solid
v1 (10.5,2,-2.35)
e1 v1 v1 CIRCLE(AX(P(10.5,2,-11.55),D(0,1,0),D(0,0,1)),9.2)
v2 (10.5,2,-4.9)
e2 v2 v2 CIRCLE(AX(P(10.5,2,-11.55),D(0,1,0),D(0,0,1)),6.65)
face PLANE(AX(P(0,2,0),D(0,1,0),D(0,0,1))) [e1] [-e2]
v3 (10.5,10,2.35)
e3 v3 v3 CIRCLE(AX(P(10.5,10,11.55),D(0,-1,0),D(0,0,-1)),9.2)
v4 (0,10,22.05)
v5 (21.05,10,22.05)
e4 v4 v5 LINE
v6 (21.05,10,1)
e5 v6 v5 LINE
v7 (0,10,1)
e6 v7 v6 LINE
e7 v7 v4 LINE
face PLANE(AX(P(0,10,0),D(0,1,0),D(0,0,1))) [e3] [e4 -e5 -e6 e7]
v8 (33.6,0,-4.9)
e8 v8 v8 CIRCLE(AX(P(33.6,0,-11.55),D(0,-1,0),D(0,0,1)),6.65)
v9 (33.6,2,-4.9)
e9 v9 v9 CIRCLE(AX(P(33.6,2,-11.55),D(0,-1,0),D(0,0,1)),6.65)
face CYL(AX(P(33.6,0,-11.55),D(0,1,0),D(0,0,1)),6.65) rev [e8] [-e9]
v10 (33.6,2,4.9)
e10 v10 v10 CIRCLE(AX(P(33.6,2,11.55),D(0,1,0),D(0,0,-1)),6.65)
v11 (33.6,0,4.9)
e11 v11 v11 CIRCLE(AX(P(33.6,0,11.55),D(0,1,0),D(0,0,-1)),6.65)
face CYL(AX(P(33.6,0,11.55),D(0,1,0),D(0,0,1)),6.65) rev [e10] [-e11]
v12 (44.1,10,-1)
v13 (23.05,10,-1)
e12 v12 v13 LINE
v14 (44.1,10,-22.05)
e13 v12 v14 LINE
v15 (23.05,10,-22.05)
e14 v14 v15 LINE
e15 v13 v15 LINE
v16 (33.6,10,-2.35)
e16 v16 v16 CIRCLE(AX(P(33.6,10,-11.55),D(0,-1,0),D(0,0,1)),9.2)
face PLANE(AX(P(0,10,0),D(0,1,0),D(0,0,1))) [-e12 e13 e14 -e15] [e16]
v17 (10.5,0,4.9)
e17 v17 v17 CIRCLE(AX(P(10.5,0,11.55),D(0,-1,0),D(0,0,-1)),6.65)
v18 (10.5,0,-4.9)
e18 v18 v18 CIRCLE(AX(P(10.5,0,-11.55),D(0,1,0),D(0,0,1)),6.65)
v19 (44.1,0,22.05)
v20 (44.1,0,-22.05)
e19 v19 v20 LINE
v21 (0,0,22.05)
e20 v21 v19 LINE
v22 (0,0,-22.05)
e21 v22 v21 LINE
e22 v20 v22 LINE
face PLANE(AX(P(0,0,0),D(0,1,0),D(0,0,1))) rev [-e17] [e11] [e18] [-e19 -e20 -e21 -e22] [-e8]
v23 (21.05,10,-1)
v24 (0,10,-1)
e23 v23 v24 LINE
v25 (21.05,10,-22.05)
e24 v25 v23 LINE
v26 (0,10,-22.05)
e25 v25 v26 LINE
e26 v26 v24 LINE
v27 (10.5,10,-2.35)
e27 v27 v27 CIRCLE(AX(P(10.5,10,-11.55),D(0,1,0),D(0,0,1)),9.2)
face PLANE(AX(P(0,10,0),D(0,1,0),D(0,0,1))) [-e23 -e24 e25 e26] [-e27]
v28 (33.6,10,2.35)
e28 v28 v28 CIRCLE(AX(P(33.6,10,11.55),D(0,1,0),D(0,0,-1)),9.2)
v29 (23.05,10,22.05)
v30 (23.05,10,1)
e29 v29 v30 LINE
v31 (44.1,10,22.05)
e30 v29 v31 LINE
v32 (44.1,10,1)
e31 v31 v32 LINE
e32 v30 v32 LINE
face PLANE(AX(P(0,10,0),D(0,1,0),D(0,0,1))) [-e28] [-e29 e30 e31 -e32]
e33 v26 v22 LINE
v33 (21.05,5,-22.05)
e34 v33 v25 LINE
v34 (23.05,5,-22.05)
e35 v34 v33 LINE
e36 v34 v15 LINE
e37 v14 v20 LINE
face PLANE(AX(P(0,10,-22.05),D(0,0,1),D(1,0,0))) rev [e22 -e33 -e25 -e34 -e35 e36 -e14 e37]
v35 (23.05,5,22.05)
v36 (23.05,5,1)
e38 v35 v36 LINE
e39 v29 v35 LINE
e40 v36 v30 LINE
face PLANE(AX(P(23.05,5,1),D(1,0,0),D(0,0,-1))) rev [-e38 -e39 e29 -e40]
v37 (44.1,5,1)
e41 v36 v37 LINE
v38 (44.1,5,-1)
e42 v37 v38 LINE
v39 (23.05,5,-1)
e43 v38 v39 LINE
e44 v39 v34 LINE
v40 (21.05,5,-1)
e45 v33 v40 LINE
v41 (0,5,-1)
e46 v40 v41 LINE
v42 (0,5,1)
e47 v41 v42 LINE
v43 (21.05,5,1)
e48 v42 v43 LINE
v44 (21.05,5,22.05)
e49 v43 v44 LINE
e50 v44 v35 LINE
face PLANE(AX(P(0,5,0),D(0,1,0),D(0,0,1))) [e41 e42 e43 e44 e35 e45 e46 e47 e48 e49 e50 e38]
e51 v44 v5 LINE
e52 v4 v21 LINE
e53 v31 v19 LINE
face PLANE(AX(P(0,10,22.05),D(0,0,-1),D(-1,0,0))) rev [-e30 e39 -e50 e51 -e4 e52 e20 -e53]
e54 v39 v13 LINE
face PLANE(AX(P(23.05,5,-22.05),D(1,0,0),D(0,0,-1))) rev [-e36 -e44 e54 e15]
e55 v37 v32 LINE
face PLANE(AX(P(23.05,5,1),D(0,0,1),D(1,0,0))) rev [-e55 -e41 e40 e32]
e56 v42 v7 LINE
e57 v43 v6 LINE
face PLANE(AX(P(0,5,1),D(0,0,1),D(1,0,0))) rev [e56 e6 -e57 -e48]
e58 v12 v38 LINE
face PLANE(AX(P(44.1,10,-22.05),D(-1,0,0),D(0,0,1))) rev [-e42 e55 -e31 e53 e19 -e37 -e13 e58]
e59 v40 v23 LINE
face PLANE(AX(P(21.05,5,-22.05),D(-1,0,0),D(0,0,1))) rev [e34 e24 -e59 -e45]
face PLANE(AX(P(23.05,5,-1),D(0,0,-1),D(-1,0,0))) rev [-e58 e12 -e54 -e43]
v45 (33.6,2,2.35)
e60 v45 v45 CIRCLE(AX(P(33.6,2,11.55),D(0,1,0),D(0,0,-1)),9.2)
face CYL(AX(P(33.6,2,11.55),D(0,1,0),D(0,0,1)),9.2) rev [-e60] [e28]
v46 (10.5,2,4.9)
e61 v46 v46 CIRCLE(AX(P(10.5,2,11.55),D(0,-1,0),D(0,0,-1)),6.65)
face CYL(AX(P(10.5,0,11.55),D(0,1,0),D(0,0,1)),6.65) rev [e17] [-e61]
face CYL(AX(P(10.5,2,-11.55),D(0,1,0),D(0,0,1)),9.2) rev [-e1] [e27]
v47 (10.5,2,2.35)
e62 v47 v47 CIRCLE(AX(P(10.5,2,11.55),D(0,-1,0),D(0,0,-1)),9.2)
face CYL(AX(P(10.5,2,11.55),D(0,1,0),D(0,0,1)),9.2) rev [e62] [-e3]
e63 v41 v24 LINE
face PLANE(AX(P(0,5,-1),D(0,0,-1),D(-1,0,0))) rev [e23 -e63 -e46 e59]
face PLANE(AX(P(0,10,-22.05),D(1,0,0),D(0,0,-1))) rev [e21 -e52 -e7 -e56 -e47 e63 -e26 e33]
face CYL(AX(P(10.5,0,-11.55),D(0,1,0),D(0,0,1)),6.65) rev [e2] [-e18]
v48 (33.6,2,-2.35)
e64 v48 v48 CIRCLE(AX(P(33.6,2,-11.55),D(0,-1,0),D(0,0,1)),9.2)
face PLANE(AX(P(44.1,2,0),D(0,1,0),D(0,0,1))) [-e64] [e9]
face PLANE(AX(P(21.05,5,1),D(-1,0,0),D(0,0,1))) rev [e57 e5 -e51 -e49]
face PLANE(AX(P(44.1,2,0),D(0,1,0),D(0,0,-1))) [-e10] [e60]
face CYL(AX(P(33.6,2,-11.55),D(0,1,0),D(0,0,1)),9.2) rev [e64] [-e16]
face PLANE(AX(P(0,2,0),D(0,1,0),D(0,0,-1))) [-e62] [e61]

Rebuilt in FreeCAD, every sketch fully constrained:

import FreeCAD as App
import Part
import Sketcher
from FreeCAD import Vector
Q = App.Units.Quantity


def add_polygon(sketch, points):
    """Adds a closed chain of lines whose ends are joined by coincident constraints."""
    first, n = sketch.GeometryCount, len(points)
    for a, b in zip(points, points[1:] + points[:1]):
        sketch.addGeometry(Part.LineSegment(App.Vector(*a, 0), App.Vector(*b, 0)), False)
    for i in range(n):
        sketch.addConstraint(Sketcher.Constraint("Coincident", first + i, 2, first + (i + 1) % n, 1))

doc = App.newDocument("Part")
body = doc.addObject("PartDesign::Body", "Body")

# Sketch on XZ plane
sketch1 = body.newObject("Sketcher::SketchObject", "Sketch")
sketch1.AttachmentSupport = (doc.getObject("XZ_Plane"), [""])
sketch1.MapMode = "FlatFace"
add_polygon(sketch1, [(0, -22), (0, 22), (44, 22), (44, -22)])  # lines 0-3
sketch1.addConstraint([
    Sketcher.Constraint("Vertical", 0),
    Sketcher.Constraint("Horizontal", 1),
    Sketcher.Constraint("Vertical", 2),
    Sketcher.Constraint("Horizontal", 3),
    Sketcher.Constraint("Symmetric", 0, 2, 3, 2, -1, 1),
    Sketcher.Constraint("Equal", 3, 0),
    Sketcher.Constraint("DistanceX", 1, 1, 1, 2, Q("44.1 mm")),
])
pad1 = body.newObject("PartDesign::Pad", "Pad")
pad1.Profile = sketch1
pad1.Length = 10
pad1.Reversed = True

# Sketch on XZ plane
sketch2 = body.newObject("Sketcher::SketchObject", "Sketch001")
sketch2.AttachmentSupport = (doc.getObject("XZ_Plane"), [""])
sketch2.MapMode = "FlatFace"
sketch2.AttachmentOffset = App.Placement(Vector(0, 0, -10), App.Rotation())
sketch2.addGeometry(Part.Circle(Vector(10, -12, 0), Vector(0, 0, 1), 9), False)
sketch2.addConstraint([
    Sketcher.Constraint("Diameter", 0, Q("18.4 mm")),
    Sketcher.Constraint("DistanceX", -1, 1, 0, 3, Q("10.5 mm")),
    Sketcher.Constraint("DistanceY", 0, 3, -1, 1, Q("11.55 mm")),
])
pocket1 = body.newObject("PartDesign::Pocket", "Pocket")
pocket1.Profile = sketch2
pocket1.Length = 8
pocket1.Reversed = True

# Sketch on XZ plane
sketch3 = body.newObject("Sketcher::SketchObject", "Sketch002")
sketch3.AttachmentSupport = (doc.getObject("XZ_Plane"), [""])
sketch3.MapMode = "FlatFace"
sketch3.AttachmentOffset = App.Placement(Vector(0, 0, -2), App.Rotation())
sketch3.addGeometry(Part.Circle(Vector(10, -12, 0), Vector(0, 0, 1), 7), False)
sketch3.addConstraint([
    Sketcher.Constraint("Diameter", 0, Q("13.3 mm")),
    Sketcher.Constraint("DistanceX", -1, 1, 0, 3, Q("10.5 mm")),
    Sketcher.Constraint("DistanceY", 0, 3, -1, 1, Q("11.55 mm")),
])
pocket2 = body.newObject("PartDesign::Pocket", "Pocket001")
pocket2.Profile = sketch3
pocket2.Type = "ThroughAll"
pocket2.Reversed = True
doc.recompute()

mirrored = body.newObject("PartDesign::Mirrored", "Mirrored")
mirrored.Originals = [pocket1, pocket2]
mirrored.MirrorPlane = (doc.getObject("XY_Plane"), [""])
body.Tip = mirrored
doc.recompute()

datumplane = body.newObject("PartDesign::Plane", "DatumPlane")
datumplane.AttachmentSupport = (doc.getObject("YZ_Plane"), [""])
datumplane.MapMode = "FlatFace"
datumplane.AttachmentOffset = App.Placement(Vector(0, 0, 22.05), App.Rotation())
mirrored2 = body.newObject("PartDesign::Mirrored", "Mirrored001")
mirrored2.Originals = [pocket1, pocket2]
mirrored2.MirrorPlane = (datumplane, [""])
body.Tip = mirrored2

# Sketch on XZ plane
sketch4 = body.newObject("Sketcher::SketchObject", "Sketch003")
sketch4.AttachmentSupport = (doc.getObject("XZ_Plane"), [""])
sketch4.MapMode = "FlatFace"
sketch4.AttachmentOffset = App.Placement(Vector(0, 0, -10), App.Rotation())
sketch4.addGeometry(Part.Circle(Vector(34, 12, 0), Vector(0, 0, 1), 9), False)
sketch4.addConstraint([
    Sketcher.Constraint("Diameter", 0, Q("18.4 mm")),
    Sketcher.Constraint("DistanceX", -1, 1, 0, 3, Q("33.6 mm")),
    Sketcher.Constraint("DistanceY", -1, 1, 0, 3, Q("11.55 mm")),
])
pocket3 = body.newObject("PartDesign::Pocket", "Pocket002")
pocket3.Profile = sketch4
pocket3.Length = 8
pocket3.Reversed = True

# Sketch on XZ plane
sketch5 = body.newObject("Sketcher::SketchObject", "Sketch004")
sketch5.AttachmentSupport = (doc.getObject("XZ_Plane"), [""])
sketch5.MapMode = "FlatFace"
sketch5.AttachmentOffset = App.Placement(Vector(0, 0, -2), App.Rotation())
sketch5.addGeometry(Part.Circle(Vector(34, 12, 0), Vector(0, 0, 1), 7), False)
sketch5.addConstraint([
    Sketcher.Constraint("Diameter", 0, Q("13.3 mm")),
    Sketcher.Constraint("DistanceX", -1, 1, 0, 3, Q("33.6 mm")),
    Sketcher.Constraint("DistanceY", -1, 1, 0, 3, Q("11.55 mm")),
])
pocket4 = body.newObject("PartDesign::Pocket", "Pocket003")
pocket4.Profile = sketch5
pocket4.Type = "ThroughAll"
pocket4.Reversed = True

# Sketch on XZ plane
sketch6 = body.newObject("Sketcher::SketchObject", "Sketch005")
sketch6.AttachmentSupport = (doc.getObject("XZ_Plane"), [""])
sketch6.MapMode = "FlatFace"
sketch6.AttachmentOffset = App.Placement(Vector(0, 0, -10), App.Rotation())
add_polygon(sketch6, [(23.1, -22.1), (21.1, -22.1), (21.1, -1), (0, -1), (0, 1), (21.1, 1), (21.1, 23.4), (23.1, 23.4), (23.1, 1), (46.3, 1), (46.3, -1), (23.1, -1)])  # lines 0-11
sketch6.addConstraint([
    Sketcher.Constraint("Horizontal", 0),
    Sketcher.Constraint("Vertical", 1),
    Sketcher.Constraint("Horizontal", 2),
    Sketcher.Constraint("Vertical", 3),
    Sketcher.Constraint("Horizontal", 4),
    Sketcher.Constraint("Vertical", 5),
    Sketcher.Constraint("Horizontal", 6),
    Sketcher.Constraint("Vertical", 7),
    Sketcher.Constraint("Horizontal", 8),
    Sketcher.Constraint("Vertical", 9),
    Sketcher.Constraint("Horizontal", 10),
    Sketcher.Constraint("Vertical", 11),
    Sketcher.Constraint("Symmetric", 2, 2, 3, 2, -1, 1),
    Sketcher.Constraint("Symmetric", 7, 2, 10, 2, -1),
    Sketcher.Constraint("Horizontal", 4, 2, 7, 2),
    Sketcher.Constraint("Vertical", 1, 2, 4, 2),
    Sketcher.Constraint("Equal", 4, 1),
    Sketcher.Constraint("Equal", 6, 3),
    Sketcher.Constraint("DistanceX", 0, 2, 0, 1, Q("2 mm")),
    Sketcher.Constraint("DistanceX", 2, 2, 2, 1, Q("21.05 mm")),
    Sketcher.Constraint("DistanceY", 5, 1, 5, 2, Q("22.36271 mm")),
    Sketcher.Constraint("DistanceX", 8, 1, 8, 2, Q("23.201393 mm")),
])
pocket5 = body.newObject("PartDesign::Pocket", "Pocket004")
pocket5.Profile = sketch6
pocket5.Length = 5
pocket5.Reversed = True

doc.recompute()
